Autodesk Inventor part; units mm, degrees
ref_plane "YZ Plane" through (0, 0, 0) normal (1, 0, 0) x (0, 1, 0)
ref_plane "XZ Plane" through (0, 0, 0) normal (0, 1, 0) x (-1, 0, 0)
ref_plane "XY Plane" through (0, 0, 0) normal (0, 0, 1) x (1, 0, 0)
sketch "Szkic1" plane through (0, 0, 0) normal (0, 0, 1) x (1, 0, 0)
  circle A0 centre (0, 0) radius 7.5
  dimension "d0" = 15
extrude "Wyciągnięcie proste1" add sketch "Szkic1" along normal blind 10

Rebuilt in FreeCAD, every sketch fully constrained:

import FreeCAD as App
import Part
import Sketcher
from FreeCAD import Vector
Q = App.Units.Quantity

doc = App.newDocument("Part")
body = doc.addObject("PartDesign::Body", "Body")

sketch1 = body.newObject("Sketcher::SketchObject", "Sketch")
sketch1.AttachmentSupport = (doc.getObject("XY_Plane"), [""])
sketch1.MapMode = "FlatFace"
sketch1.addGeometry(Part.Circle(Vector(0, 0, 0), Vector(0, 0, 1), 8), False)
sketch1.addConstraint([
    Sketcher.Constraint("Coincident", 0, 3, -1, 1),
    Sketcher.Constraint("Diameter", 0, Q("15 mm")),
])
pad1 = body.newObject("PartDesign::Pad", "Pad")
pad1.Profile = sketch1
pad1.Length = 10

doc.recompute()
